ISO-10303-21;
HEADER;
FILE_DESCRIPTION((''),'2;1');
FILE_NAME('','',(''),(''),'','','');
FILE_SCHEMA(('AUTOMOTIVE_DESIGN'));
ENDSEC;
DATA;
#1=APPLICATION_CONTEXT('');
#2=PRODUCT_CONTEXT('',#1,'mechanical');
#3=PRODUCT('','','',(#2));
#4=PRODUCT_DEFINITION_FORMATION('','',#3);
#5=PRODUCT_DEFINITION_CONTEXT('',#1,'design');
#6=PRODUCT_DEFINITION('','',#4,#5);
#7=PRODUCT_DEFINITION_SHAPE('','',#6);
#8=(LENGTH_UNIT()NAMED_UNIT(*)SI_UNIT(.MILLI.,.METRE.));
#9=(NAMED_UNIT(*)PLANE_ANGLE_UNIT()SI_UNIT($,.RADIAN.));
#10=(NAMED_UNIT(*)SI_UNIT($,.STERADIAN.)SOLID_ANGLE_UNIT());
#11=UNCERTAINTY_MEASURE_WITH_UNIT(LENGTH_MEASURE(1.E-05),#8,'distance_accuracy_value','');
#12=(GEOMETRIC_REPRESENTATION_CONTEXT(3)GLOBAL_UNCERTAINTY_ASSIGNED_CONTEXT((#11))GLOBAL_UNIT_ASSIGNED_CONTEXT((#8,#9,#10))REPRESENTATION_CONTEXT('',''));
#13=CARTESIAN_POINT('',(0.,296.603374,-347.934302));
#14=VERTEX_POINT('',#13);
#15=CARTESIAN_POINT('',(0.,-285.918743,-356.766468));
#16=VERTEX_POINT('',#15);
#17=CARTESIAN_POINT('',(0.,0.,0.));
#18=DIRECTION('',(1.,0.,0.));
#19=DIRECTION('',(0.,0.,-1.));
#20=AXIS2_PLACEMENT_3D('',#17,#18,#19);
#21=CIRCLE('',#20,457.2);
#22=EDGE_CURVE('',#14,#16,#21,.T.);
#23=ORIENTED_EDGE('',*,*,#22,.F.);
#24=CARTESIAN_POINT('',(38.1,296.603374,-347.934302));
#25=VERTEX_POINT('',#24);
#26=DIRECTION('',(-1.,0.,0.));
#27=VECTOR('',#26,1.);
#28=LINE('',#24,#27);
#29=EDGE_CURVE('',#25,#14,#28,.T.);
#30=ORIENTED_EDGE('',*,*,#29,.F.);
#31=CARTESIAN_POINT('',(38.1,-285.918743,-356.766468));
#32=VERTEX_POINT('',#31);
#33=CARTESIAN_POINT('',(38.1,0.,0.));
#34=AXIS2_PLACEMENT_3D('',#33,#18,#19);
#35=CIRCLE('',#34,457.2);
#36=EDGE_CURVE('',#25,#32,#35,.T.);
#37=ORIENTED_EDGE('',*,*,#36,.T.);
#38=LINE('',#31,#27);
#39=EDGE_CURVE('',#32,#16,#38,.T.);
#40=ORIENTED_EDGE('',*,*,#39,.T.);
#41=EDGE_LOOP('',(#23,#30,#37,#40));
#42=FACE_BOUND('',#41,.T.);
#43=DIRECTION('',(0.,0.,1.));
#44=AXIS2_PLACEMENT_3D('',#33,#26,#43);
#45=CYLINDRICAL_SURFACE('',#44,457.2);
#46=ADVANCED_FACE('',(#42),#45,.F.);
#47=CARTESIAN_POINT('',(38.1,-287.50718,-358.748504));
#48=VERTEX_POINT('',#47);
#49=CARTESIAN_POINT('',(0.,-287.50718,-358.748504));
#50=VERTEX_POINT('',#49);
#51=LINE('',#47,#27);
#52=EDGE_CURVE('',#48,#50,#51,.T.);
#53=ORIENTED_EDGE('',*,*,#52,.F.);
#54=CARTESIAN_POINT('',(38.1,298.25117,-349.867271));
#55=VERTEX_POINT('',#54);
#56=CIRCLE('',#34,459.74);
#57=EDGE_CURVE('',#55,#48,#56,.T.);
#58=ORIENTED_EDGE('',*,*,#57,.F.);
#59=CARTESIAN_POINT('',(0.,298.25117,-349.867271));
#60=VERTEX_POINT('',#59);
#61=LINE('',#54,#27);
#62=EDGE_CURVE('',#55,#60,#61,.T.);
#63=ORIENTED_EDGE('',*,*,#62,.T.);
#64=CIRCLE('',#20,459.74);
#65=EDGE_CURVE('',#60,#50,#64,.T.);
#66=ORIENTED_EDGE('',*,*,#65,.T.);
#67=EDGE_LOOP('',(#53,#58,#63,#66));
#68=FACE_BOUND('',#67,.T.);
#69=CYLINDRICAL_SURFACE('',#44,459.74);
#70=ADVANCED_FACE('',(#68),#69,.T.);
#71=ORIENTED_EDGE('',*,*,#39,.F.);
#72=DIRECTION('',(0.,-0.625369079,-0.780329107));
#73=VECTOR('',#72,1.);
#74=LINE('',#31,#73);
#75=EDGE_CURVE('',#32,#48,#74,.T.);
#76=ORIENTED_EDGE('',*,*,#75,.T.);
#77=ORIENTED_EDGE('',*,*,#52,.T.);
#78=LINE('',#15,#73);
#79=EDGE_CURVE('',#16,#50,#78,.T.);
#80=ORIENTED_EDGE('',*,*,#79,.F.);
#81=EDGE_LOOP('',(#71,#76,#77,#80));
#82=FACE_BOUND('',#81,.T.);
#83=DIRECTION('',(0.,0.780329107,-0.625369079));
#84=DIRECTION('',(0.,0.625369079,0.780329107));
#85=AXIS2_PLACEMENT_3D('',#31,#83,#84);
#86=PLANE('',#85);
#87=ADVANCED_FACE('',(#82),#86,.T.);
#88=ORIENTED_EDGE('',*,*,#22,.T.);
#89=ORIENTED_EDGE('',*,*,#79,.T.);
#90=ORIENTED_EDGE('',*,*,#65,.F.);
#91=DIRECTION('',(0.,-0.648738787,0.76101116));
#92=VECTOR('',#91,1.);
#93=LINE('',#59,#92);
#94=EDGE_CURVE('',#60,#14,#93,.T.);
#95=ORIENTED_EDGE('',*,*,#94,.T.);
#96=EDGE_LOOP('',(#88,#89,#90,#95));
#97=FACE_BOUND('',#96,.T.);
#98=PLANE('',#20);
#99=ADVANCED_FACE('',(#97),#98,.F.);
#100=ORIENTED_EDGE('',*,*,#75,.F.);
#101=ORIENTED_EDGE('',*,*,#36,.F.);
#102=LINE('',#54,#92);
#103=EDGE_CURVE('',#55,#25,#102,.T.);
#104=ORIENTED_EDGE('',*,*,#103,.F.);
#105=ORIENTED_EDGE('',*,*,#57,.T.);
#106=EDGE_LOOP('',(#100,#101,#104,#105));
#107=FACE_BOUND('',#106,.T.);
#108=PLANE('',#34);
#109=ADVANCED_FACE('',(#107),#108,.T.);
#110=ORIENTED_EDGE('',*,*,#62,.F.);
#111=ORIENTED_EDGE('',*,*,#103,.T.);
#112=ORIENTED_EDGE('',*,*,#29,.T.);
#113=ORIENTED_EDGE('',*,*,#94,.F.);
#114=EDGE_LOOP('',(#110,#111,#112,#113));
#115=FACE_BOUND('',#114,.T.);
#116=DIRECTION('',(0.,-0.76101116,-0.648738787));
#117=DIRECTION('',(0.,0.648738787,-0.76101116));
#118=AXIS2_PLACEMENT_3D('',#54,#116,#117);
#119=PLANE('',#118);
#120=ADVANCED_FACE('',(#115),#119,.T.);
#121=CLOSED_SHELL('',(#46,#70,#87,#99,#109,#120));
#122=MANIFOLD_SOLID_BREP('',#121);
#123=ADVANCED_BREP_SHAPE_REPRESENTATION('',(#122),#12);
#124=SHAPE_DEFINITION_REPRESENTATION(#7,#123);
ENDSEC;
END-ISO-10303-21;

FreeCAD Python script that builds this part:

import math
import FreeCAD as App
import Part
import Sketcher
Q = App.Units.Quantity

doc = App.newDocument("Part")
body = doc.addObject("PartDesign::Body", "Body")

sketch1 = body.newObject("Sketcher::SketchObject", "Sketch")
sketch1.AttachmentSupport = (doc.getObject("YZ_Plane"), [""])
sketch1.MapMode = "FlatFace"
sketch1.addGeometry([
    Part.ArcOfCircle(Part.Circle(App.Vector(0, 0, 0), App.Vector(0, 0, 1), 457.2), math.radians(-50), math.radians(231)),
    Part.LineSegment(App.Vector(296.6, -347.9, 0), App.Vector(298.3, -349.9, 0)),
    Part.ArcOfCircle(Part.Circle(App.Vector(0, 0, 0), App.Vector(0, 0, 1), 459.7), math.radians(-50), math.radians(231)),
    Part.LineSegment(App.Vector(-287.5, -358.7, 0), App.Vector(-285.9, -356.8, 0)),
], False)
sketch1.addConstraint([
    Sketcher.Constraint("Coincident", 0, 1, 1, 1),
    Sketcher.Constraint("Coincident", 1, 2, 2, 1),
    Sketcher.Constraint("Coincident", 2, 2, 3, 1),
    Sketcher.Constraint("Coincident", 3, 2, 0, 2),
    Sketcher.Constraint("Coincident", 0, 3, -1, 1),
    Sketcher.Constraint("Coincident", 2, 3, -1, 1),
    Sketcher.Constraint("Radius", 0, Q("18 in")),
    Sketcher.Constraint("Radius", 2, Q("18.1 in")),
    Sketcher.Constraint("DistanceY", 2, 2, 0, 1, 10.814201),
    Sketcher.Constraint("DistanceX", -1, 1, 1, 2, 298.25117),
    Sketcher.Constraint("DistanceX", 3, 2, -1, 1, 285.918743),
    Sketcher.Constraint("DistanceX", 2, 2, 0, 1, 584.110554),
])
pad1 = body.newObject("PartDesign::Pad", "Pad")
pad1.Profile = sketch1
pad1.Length = Q("1.5 in")

doc.recompute()
